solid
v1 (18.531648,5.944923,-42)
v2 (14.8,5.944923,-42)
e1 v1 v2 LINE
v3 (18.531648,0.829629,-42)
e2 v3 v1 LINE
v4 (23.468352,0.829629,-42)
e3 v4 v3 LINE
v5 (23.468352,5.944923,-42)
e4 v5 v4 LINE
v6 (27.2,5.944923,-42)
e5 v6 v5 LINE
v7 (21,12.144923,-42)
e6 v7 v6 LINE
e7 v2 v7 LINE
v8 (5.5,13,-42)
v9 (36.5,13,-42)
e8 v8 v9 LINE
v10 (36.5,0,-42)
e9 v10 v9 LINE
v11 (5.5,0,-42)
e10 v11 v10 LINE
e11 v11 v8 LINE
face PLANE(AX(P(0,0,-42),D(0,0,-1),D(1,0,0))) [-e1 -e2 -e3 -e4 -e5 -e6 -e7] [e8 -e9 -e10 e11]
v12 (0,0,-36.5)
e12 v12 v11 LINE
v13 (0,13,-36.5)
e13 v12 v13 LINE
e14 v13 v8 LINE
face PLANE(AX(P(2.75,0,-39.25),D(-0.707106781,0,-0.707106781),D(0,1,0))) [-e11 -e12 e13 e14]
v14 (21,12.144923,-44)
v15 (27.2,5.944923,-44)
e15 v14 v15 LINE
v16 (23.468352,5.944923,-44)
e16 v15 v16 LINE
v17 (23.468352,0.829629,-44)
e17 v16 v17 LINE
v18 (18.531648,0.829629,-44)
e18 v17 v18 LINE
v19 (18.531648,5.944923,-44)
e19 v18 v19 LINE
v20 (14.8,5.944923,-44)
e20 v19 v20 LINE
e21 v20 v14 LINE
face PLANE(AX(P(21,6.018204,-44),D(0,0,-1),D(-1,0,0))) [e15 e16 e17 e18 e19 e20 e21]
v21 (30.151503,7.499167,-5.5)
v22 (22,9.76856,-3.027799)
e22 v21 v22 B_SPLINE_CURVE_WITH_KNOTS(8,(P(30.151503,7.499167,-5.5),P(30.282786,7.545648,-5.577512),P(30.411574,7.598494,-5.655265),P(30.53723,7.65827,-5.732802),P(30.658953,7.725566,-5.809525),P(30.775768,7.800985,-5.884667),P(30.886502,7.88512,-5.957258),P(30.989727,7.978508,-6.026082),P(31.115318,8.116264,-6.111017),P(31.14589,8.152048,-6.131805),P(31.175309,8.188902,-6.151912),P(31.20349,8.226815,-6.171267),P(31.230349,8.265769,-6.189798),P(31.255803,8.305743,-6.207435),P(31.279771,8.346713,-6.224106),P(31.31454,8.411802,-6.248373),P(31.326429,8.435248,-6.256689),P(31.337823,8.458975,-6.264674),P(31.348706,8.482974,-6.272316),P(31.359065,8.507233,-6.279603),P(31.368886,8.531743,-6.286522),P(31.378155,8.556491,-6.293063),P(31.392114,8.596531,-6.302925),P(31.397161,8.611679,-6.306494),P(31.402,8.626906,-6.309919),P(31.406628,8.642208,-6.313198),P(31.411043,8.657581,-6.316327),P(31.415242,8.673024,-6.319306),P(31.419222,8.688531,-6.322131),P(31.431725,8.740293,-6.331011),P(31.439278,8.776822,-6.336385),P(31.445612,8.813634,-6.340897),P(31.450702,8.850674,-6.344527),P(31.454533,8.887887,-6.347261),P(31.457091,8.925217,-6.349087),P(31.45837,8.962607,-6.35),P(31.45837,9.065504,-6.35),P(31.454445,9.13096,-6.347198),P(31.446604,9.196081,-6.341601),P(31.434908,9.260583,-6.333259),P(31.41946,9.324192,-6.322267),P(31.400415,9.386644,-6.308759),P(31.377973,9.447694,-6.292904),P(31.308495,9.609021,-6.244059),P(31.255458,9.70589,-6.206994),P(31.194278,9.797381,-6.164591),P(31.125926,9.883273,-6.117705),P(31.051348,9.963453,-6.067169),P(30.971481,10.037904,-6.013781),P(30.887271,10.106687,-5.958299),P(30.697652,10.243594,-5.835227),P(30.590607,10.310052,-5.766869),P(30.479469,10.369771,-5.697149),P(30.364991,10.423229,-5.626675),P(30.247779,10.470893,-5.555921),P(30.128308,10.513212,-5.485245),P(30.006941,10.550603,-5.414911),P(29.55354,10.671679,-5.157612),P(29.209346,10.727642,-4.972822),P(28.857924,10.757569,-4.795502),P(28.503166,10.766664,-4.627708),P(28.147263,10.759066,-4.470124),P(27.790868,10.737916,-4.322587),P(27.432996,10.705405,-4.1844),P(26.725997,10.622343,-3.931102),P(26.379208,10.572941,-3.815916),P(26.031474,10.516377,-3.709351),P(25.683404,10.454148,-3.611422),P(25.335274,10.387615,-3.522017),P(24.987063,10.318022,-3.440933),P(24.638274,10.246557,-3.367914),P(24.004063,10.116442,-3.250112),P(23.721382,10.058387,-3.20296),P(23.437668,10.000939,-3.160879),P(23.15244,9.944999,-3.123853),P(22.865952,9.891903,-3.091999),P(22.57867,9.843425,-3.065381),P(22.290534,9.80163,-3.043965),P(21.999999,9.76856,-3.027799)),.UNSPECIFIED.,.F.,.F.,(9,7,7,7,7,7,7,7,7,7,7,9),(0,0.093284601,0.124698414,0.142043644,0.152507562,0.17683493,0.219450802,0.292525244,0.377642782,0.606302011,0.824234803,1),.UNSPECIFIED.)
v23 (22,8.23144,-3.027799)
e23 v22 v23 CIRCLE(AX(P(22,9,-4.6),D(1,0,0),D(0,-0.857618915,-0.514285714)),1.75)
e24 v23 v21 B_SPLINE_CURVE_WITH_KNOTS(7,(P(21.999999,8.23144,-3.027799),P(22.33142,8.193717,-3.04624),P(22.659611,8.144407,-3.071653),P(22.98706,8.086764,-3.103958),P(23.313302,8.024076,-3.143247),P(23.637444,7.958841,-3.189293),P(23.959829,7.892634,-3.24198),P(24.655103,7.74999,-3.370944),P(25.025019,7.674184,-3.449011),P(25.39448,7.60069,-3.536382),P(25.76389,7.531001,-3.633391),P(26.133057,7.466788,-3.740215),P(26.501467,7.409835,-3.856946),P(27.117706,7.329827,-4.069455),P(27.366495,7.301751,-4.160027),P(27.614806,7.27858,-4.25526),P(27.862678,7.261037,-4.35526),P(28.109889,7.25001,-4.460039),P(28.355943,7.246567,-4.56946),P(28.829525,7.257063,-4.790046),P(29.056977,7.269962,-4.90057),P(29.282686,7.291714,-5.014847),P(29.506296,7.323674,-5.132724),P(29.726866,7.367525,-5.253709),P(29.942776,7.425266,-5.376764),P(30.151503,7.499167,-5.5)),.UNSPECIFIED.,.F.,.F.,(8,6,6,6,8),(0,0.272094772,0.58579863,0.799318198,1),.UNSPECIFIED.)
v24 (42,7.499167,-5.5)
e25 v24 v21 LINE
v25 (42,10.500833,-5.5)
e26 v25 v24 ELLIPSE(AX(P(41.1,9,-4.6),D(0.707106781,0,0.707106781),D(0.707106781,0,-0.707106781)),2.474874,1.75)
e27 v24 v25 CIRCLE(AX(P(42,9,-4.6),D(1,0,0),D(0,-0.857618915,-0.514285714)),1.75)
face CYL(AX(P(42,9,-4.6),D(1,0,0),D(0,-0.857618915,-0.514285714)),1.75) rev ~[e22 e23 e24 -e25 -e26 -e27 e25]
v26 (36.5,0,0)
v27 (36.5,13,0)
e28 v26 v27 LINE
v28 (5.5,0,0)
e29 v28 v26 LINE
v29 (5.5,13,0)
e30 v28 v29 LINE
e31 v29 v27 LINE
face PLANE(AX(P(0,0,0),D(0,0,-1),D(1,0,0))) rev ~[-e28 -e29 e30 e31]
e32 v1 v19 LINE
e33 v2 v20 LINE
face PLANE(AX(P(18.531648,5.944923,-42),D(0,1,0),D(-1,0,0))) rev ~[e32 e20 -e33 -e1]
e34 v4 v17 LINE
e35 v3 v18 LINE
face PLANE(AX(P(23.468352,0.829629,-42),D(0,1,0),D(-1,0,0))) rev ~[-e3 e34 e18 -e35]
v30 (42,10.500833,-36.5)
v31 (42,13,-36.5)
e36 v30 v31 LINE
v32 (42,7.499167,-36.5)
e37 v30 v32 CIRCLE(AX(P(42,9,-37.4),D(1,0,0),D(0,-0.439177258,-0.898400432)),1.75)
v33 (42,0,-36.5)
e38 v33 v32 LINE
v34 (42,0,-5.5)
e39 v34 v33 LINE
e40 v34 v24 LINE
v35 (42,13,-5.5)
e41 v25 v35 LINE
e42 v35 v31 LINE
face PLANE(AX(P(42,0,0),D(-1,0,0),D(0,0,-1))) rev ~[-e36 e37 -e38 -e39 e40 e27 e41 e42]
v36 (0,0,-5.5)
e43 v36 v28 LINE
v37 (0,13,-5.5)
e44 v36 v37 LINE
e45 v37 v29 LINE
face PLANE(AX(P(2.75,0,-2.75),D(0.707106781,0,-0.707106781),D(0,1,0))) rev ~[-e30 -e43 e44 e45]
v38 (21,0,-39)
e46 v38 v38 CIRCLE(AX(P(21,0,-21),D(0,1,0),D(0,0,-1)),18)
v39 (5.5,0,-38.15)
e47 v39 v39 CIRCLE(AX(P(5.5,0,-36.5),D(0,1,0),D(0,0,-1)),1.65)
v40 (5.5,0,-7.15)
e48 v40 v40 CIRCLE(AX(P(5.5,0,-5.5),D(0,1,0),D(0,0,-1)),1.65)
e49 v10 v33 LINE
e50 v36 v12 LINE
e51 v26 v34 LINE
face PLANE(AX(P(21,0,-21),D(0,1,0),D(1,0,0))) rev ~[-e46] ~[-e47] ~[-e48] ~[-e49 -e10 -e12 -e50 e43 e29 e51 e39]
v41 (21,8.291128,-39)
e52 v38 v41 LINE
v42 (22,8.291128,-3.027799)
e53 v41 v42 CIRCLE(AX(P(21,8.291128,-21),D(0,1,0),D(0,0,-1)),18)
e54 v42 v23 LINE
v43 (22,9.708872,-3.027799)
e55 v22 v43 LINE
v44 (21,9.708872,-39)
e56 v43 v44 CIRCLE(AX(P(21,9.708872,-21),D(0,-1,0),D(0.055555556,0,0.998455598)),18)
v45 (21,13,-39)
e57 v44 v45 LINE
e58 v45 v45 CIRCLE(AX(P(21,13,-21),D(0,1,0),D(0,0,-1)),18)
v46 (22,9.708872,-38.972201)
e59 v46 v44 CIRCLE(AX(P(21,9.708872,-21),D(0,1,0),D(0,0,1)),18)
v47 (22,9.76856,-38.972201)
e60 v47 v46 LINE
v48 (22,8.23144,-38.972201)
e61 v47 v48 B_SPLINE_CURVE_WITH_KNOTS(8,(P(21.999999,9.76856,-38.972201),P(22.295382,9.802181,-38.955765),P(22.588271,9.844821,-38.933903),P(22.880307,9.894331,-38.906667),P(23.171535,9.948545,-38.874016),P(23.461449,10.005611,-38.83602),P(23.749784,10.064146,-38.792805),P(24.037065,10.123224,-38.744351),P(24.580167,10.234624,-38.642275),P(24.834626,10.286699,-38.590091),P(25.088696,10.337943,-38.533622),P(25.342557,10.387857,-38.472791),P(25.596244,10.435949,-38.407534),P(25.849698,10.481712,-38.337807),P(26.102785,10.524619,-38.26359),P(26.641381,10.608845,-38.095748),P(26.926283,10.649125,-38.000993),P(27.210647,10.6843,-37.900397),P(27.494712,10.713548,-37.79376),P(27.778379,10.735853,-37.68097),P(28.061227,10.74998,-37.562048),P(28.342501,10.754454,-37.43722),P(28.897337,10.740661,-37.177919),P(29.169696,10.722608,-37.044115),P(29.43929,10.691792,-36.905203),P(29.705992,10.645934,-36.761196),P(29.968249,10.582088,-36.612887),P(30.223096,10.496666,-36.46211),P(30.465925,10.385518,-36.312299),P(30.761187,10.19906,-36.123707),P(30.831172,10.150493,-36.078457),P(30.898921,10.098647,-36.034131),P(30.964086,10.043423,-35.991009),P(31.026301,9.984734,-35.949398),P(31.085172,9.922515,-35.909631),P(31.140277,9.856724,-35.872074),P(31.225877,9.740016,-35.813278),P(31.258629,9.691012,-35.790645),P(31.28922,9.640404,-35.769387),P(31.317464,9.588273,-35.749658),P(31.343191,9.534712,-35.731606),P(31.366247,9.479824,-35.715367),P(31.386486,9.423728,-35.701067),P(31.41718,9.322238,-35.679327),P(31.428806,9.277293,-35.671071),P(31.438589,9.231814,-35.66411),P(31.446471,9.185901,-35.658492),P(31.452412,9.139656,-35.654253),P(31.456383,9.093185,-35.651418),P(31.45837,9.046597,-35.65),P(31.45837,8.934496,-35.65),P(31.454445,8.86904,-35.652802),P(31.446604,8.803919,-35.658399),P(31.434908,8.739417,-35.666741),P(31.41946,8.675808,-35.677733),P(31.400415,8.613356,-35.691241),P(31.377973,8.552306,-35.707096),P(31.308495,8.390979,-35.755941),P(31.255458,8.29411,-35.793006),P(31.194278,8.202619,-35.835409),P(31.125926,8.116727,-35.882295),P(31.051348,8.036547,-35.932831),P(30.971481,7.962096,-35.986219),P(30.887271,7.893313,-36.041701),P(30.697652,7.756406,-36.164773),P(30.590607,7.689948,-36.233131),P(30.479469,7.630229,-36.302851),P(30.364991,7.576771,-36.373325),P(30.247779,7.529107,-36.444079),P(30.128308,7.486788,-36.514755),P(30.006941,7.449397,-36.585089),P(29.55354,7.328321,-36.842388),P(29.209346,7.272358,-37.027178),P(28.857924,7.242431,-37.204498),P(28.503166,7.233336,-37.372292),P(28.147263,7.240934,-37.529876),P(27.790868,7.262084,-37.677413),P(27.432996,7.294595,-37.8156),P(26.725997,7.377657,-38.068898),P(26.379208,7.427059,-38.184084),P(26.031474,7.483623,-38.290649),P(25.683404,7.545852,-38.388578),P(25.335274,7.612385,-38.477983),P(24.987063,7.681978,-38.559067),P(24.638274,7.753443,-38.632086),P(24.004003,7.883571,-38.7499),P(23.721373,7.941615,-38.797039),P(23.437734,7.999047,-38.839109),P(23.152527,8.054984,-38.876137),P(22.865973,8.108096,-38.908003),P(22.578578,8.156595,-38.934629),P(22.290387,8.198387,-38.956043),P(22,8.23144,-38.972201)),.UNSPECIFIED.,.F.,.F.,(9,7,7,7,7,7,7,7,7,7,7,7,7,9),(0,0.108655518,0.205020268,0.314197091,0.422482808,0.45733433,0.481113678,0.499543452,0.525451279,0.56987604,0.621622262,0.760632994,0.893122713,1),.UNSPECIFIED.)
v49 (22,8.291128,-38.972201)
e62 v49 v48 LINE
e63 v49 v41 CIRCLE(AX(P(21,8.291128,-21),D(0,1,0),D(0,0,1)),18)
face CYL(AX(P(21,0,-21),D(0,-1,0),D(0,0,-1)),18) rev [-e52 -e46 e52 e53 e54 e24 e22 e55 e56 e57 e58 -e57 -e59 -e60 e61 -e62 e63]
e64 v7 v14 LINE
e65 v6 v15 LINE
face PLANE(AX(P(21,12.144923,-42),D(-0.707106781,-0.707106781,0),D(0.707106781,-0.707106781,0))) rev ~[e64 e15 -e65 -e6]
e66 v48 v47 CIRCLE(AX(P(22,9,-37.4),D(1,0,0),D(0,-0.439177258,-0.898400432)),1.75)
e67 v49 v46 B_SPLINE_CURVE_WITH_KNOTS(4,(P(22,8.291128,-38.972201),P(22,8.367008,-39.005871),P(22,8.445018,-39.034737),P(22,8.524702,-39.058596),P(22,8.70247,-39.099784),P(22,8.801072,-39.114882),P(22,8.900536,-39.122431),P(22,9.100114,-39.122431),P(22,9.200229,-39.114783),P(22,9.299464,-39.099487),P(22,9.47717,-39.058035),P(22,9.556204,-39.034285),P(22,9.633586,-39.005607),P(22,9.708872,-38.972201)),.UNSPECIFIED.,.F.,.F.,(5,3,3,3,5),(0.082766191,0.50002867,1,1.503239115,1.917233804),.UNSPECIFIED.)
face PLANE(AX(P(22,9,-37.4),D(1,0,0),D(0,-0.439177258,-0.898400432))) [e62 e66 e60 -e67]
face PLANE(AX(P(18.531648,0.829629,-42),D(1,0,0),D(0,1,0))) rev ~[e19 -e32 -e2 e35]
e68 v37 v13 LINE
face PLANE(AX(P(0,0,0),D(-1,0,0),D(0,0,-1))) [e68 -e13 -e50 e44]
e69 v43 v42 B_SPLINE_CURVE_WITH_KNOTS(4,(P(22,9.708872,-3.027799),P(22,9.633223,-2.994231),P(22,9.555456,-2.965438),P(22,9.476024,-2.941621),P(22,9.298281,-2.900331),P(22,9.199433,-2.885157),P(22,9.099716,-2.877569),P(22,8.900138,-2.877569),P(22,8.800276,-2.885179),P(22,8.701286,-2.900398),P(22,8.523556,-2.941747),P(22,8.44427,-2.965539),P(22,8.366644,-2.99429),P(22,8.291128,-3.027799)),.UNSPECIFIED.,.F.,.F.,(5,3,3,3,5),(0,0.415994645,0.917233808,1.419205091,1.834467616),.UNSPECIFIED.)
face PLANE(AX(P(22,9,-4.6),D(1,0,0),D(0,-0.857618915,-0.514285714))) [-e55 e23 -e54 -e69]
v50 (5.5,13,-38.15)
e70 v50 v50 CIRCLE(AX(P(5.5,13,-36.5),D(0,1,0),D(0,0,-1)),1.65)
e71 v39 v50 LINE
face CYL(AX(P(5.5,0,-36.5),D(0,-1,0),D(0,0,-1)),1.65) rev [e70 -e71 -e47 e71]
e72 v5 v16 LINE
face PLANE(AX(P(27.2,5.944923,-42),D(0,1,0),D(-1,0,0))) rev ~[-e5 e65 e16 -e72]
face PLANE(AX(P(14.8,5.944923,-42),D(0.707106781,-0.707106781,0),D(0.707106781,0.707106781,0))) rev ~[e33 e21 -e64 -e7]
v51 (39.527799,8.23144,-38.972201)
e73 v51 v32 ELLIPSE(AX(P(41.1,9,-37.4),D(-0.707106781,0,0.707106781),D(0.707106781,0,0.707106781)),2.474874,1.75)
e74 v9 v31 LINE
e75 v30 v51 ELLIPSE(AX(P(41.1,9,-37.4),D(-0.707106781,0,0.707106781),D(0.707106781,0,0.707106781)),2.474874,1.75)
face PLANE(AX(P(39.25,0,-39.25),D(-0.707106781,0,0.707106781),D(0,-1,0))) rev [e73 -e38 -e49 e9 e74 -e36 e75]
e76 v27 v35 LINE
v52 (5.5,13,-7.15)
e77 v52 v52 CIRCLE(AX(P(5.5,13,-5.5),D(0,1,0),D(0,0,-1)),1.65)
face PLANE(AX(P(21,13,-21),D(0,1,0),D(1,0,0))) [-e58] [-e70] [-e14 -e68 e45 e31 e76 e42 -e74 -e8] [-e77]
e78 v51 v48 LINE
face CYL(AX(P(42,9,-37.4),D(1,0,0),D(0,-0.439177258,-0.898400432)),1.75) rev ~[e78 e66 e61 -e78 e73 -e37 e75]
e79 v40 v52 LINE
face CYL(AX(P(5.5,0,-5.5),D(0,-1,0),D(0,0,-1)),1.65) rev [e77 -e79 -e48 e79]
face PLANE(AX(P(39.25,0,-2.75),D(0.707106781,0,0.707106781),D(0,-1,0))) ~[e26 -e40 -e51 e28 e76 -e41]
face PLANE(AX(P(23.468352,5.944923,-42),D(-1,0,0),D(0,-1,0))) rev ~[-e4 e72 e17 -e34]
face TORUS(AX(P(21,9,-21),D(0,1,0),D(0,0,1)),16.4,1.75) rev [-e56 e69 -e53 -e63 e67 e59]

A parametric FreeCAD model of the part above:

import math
import FreeCAD as App
import Part
import Sketcher


def edges_at(feature, points):
    """Names of the edges that pass closest to the given points."""
    edges = feature.Shape.Edges
    near = lambda p: min(range(len(edges)), key=lambda i: edges[i].distToShape(Part.Vertex(*p))[0])
    return sorted({f"Edge{near(p) + 1}" for p in points})


def add_polygon(sketch, points):
    """Adds a closed chain of lines whose ends are joined by coincident constraints."""
    first, n = sketch.GeometryCount, len(points)
    for a, b in zip(points, points[1:] + points[:1]):
        sketch.addGeometry(Part.LineSegment(App.Vector(*a, 0), App.Vector(*b, 0)), False)
    for i in range(n):
        sketch.addConstraint(Sketcher.Constraint("Coincident", first + i, 2, first + (i + 1) % n, 1))

doc = App.newDocument("Part")
params = doc.addObject("Spreadsheet::Sheet", "Params")
for row, (alias, value) in enumerate([
    ("sketch1_diameter", "36 mm"),
    ("sketch1_diameter2", "3.3 mm"),
    ("sketch1_width", "42 mm"),
    ("pad1_length", "13 mm"),
    ("chamfer_size", "5.5 mm"),
    ("sketch2_diameter", "3.5 mm"),
    ("pocket1_length", "20 mm"),
    ("sketch3_diameter", "3.5 mm"),
    ("pocket2_length", "20 mm"),
    ("pad2_length", "2 mm"),
    ("sketch5_radius", "1.75 mm"),
    ("groove_angle", "183.3 deg"),
    ("sketch6_radius", "1.75 mm"),
    ("groove2_angle", "3.2 deg"),
], start=1):
    params.set(f"A{row}", alias)
    params.set(f"B{row}", "=" + value)
    params.setAlias(f"B{row}", alias)

body = doc.addObject("PartDesign::Body", "Body")

# Sketch on XZ plane
sketch1 = body.newObject("Sketcher::SketchObject", "Sketch")
sketch1.AttachmentSupport = (doc.getObject("XZ_Plane"), [""])
sketch1.MapMode = "FlatFace"
add_polygon(sketch1, [(0, -42), (0, 0), (42, 0), (42, -42)])  # lines 0-3
sketch1.addGeometry(Part.Circle(App.Vector(5.5, -5.5, 0), App.Vector(0, 0, 1), 1.6), False)  # 4
sketch1.addGeometry(Part.Circle(App.Vector(5.5, -36.5, 0), App.Vector(0, 0, 1), 1.6), False)  # 5
sketch1.addGeometry(Part.Circle(App.Vector(21, -21, 0), App.Vector(0, 0, 1), 18), False)  # 6
sketch1.addConstraint([
    Sketcher.Constraint("Vertical", 0),
    Sketcher.Constraint("Horizontal", 1),
    Sketcher.Constraint("Vertical", 2),
    Sketcher.Constraint("Horizontal", 3),
    Sketcher.Constraint("Coincident", 0, 2, -1, 1),
    Sketcher.Constraint("Equal", 4, 5),
    Sketcher.Constraint("Vertical", 4, 3, 5, 3),
    Sketcher.Constraint("Equal", 3, 0),
    Sketcher.Constraint("Diameter", 6, 36.0),
    Sketcher.Constraint("Diameter", 4, 3.3),
    Sketcher.Constraint("DistanceX", 1, 1, 1, 2, 42.0),
    Sketcher.Constraint("DistanceX", -1, 1, 6, 3, 21.0),
    Sketcher.Constraint("DistanceY", 6, 3, -1, 1, 21.0),
    Sketcher.Constraint("DistanceY", 5, 3, 4, 3, 31.0),
    Sketcher.Constraint("DistanceX", -1, 1, 4, 3, 5.5),
    Sketcher.Constraint("DistanceY", 4, 3, -1, 1, 5.5),
])
sketch1.setExpression("Constraints[12]", "Params.sketch1_diameter")
sketch1.setExpression("Constraints[13]", "Params.sketch1_diameter2")
sketch1.setExpression("Constraints[14]", "Params.sketch1_width")
pad1 = body.newObject("PartDesign::Pad", "Pad")
pad1.Profile = sketch1
pad1.setExpression("Length", "Params.pad1_length")
pad1.Reversed = True
doc.recompute()

chamfer = body.newObject("PartDesign::Chamfer", "Chamfer")
chamfer.Base = (pad1, edges_at(pad1, [
    (0, 6.5, -42),
    (42, 6.5, -42),
    (42, 6.5, 0),
    (0, 6.5, 0),
]))
chamfer.setExpression("Size", "Params.chamfer_size")

# Sketch on YZ plane
sketch2 = body.newObject("Sketcher::SketchObject", "Sketch001")
sketch2.AttachmentSupport = (doc.getObject("YZ_Plane"), [""])
sketch2.MapMode = "FlatFace"
sketch2.AttachmentOffset = App.Placement(App.Vector(0, 0, 42), App.Rotation())
sketch2.addGeometry(Part.Circle(App.Vector(9, -37.4, 0), App.Vector(0, 0, 1), 1.8), False)
sketch2.addConstraint([
    Sketcher.Constraint("Diameter", 0, 3.5),
    Sketcher.Constraint("DistanceX", -1, 1, 0, 3, 9.0),
    Sketcher.Constraint("DistanceY", 0, 3, -1, 1, 37.4),
])
sketch2.setExpression("Constraints[0]", "Params.sketch2_diameter")
pocket1 = body.newObject("PartDesign::Pocket", "Pocket")
pocket1.Profile = sketch2
pocket1.setExpression("Length", "Params.pocket1_length")

# Sketch on YZ plane
sketch3 = body.newObject("Sketcher::SketchObject", "Sketch002")
sketch3.AttachmentSupport = (doc.getObject("YZ_Plane"), [""])
sketch3.MapMode = "FlatFace"
sketch3.AttachmentOffset = App.Placement(App.Vector(0, 0, 42), App.Rotation())
sketch3.addGeometry(Part.Circle(App.Vector(9, -4.6, 0), App.Vector(0, 0, 1), 1.8), False)
sketch3.addConstraint([
    Sketcher.Constraint("Diameter", 0, 3.5),
    Sketcher.Constraint("DistanceX", -1, 1, 0, 3, 9.0),
    Sketcher.Constraint("DistanceY", 0, 3, -1, 1, 4.6),
])
sketch3.setExpression("Constraints[0]", "Params.sketch3_diameter")
pocket2 = body.newObject("PartDesign::Pocket", "Pocket001")
pocket2.Profile = sketch3
pocket2.setExpression("Length", "Params.pocket2_length")

# Sketch on XY plane
sketch4 = body.newObject("Sketcher::SketchObject", "Sketch003")
sketch4.AttachmentSupport = (doc.getObject("XY_Plane"), [""])
sketch4.MapMode = "FlatFace"
sketch4.AttachmentOffset = App.Placement(App.Vector(0, 0, -42), App.Rotation())
add_polygon(sketch4, [(23.5, 0.8), (18.5, 0.8), (18.5, 5.9), (14.8, 5.9), (21, 12.1), (27.2, 5.9), (23.5, 5.9)])  # lines 0-6
sketch4.addConstraint([
    Sketcher.Constraint("Horizontal", 0),
    Sketcher.Constraint("Vertical", 1),
    Sketcher.Constraint("Horizontal", 2),
    Sketcher.Constraint("Horizontal", 5),
    Sketcher.Constraint("Vertical", 6),
    Sketcher.Constraint("Perpendicular", 3, 4),
    Sketcher.Constraint("Horizontal", 2, 2, 4, 2),
    Sketcher.Constraint("Equal", 2, 5),
    Sketcher.Constraint("Equal", 3, 4),
    Sketcher.Constraint("DistanceX", -1, 1, 3, 2, 21.0),
    Sketcher.Constraint("DistanceX", -1, 1, 2, 2, 14.8),
    Sketcher.Constraint("DistanceX", 2, 2, 2, 1, 3.731648),
    Sketcher.Constraint("DistanceY", 1, 1, 1, 2, 5.115293),
    Sketcher.Constraint("DistanceY", -1, 1, 0, 2, 0.829629),
])
pad2 = body.newObject("PartDesign::Pad", "Pad001")
pad2.Profile = sketch4
pad2.setExpression("Length", "Params.pad2_length")
pad2.Reversed = True

# Sketch on YZ plane
sketch5 = body.newObject("Sketcher::SketchObject", "Sketch004")
sketch5.AttachmentSupport = (doc.getObject("YZ_Plane"), [""])
sketch5.MapMode = "FlatFace"
sketch5.AttachmentOffset = App.Placement(App.Vector(0, 0, 21), App.Rotation())
sketch5.addGeometry([
    Part.LineSegment(App.Vector(8.2, -3, 0), App.Vector(9.8, -3, 0)),
    Part.ArcOfCircle(Part.Circle(App.Vector(9, -4.6, 0), App.Vector(0, 0, 1), 1.8), math.radians(64), math.radians(116)),
], False)
sketch5.addGeometry(Part.LineSegment(App.Vector(9.8, -21, 0), App.Vector(8.2, -21, 0)), True)  # axis
sketch5.addConstraint([
    Sketcher.Constraint("Coincident", 0, 1, 1, 2),
    Sketcher.Constraint("Coincident", 1, 1, 0, 2),
    Sketcher.Constraint("Horizontal", 0),
    Sketcher.Constraint("Horizontal", 2),
    Sketcher.Constraint("Vertical", 1, 1, 2, 1),
    Sketcher.Constraint("Vertical", 0, 1, 2, 2),
    Sketcher.Constraint("Radius", 1, 1.75),
    Sketcher.Constraint("DistanceX", -1, 1, 1, 3, 9.0),
    Sketcher.Constraint("DistanceY", 2, 1, -1, 1, 21.0),
    Sketcher.Constraint("DistanceY", 1, 3, -1, 1, 4.6),
    Sketcher.Constraint("DistanceX", 0, 1, 0, 2, 1.53712),
])
sketch5.setExpression("Constraints[6]", "Params.sketch5_radius")
groove = body.newObject("PartDesign::Groove", "Groove")
groove.Profile = sketch5
groove.ReferenceAxis = (sketch5, ["Axis0"])
groove.setExpression("Angle", "Params.groove_angle")

# Sketch on YZ plane
sketch6 = body.newObject("Sketcher::SketchObject", "Sketch005")
sketch6.AttachmentSupport = (doc.getObject("YZ_Plane"), [""])
sketch6.MapMode = "FlatFace"
sketch6.AttachmentOffset = App.Placement(App.Vector(0, 0, 21), App.Rotation())
sketch6.addGeometry([
    Part.LineSegment(App.Vector(8.2, -3, 0), App.Vector(9.8, -3, 0)),
    Part.ArcOfCircle(Part.Circle(App.Vector(9, -4.6, 0), App.Vector(0, 0, 1), 1.8), math.radians(64), math.radians(116)),
], False)
sketch6.addGeometry(Part.LineSegment(App.Vector(8.2, -21, 0), App.Vector(9.8, -21, 0)), True)  # axis
sketch6.addConstraint([
    Sketcher.Constraint("Coincident", 0, 1, 1, 2),
    Sketcher.Constraint("Coincident", 1, 1, 0, 2),
    Sketcher.Constraint("Horizontal", 0),
    Sketcher.Constraint("Horizontal", 2),
    Sketcher.Constraint("Vertical", 0, 1, 2, 1),
    Sketcher.Constraint("Vertical", 1, 1, 2, 2),
    Sketcher.Constraint("Radius", 1, 1.75),
    Sketcher.Constraint("DistanceX", -1, 1, 1, 3, 9.0),
    Sketcher.Constraint("DistanceY", 2, 1, -1, 1, 21.0),
    Sketcher.Constraint("DistanceY", 1, 3, -1, 1, 4.6),
    Sketcher.Constraint("DistanceX", 0, 1, 0, 2, 1.53712),
])
sketch6.setExpression("Constraints[6]", "Params.sketch6_radius")
groove2 = body.newObject("PartDesign::Groove", "Groove001")
groove2.Profile = sketch6
groove2.ReferenceAxis = (sketch6, ["Axis0"])
groove2.setExpression("Angle", "Params.groove2_angle")

doc.recompute()
